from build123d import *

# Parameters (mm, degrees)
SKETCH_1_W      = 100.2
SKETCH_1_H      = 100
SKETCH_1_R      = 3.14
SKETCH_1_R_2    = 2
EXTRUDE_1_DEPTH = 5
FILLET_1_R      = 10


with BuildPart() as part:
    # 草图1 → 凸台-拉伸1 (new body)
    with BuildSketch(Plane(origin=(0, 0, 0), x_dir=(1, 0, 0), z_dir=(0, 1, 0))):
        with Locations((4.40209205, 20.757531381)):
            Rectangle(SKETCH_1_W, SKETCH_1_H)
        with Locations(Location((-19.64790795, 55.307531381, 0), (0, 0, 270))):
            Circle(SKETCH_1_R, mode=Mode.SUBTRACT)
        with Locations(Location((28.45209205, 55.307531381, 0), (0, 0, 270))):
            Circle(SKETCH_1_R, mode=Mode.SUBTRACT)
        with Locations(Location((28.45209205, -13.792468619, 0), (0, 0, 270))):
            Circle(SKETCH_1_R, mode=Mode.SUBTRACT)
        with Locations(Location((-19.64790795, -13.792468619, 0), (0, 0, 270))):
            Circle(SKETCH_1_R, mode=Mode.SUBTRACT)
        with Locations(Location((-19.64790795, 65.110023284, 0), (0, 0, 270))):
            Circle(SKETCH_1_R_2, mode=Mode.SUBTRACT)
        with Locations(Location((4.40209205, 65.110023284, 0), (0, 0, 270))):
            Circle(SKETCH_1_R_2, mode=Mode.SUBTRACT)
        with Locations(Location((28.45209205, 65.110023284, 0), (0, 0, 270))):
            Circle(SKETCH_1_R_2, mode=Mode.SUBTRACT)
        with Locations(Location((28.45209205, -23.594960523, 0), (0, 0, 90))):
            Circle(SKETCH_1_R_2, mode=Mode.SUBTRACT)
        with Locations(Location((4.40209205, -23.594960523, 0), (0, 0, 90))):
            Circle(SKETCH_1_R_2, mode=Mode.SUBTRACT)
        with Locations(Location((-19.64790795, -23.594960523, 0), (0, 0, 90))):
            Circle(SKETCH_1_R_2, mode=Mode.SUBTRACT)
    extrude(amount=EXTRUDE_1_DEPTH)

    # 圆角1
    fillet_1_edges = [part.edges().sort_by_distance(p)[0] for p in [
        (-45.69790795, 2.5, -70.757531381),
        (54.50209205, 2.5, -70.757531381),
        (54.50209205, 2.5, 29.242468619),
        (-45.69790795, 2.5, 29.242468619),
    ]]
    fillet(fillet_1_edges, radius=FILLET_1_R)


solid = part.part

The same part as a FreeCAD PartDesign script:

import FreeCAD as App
import Part
import Sketcher
Q = App.Units.Quantity


def edges_at(feature, points):
    """Names of the edges that pass closest to the given points."""
    edges = feature.Shape.Edges
    near = lambda p: min(range(len(edges)), key=lambda i: edges[i].distToShape(Part.Vertex(*p))[0])
    return sorted({f"Edge{near(p) + 1}" for p in points})

doc = App.newDocument("Part")
params = doc.addObject("Spreadsheet::Sheet", "Params")
for row, (alias, value) in enumerate([
    ("sketch1_diameter", "4 mm"),
    ("sketch1_diameter2", "6.28 mm"),
    ("sketch1_height", "100 mm"),
    ("sketch1_width", "100.2 mm"),
    ("pad1_length", "5 mm"),
    ("fillet_radius", "10 mm"),
], start=1):
    params.set(f"A{row}", alias)
    params.set(f"B{row}", "=" + value)
    params.setAlias(f"B{row}", alias)

body = doc.addObject("PartDesign::Body", "Body")

# Sketch on XZ plane
sketch1 = body.newObject("Sketcher::SketchObject", "Sketch")
sketch1.AttachmentSupport = (doc.getObject("XZ_Plane"), [""])
sketch1.MapMode = "FlatFace"
sketch1.addGeometry([
    Part.LineSegment(App.Vector(-45.697908, -70.757531, 0), App.Vector(-45.697908, 29.242469, 0)),  # 0
    Part.LineSegment(App.Vector(-45.697908, 29.242469, 0), App.Vector(54.502092, 29.242469, 0)),  # 1
    Part.LineSegment(App.Vector(54.502092, 29.242469, 0), App.Vector(54.502092, -70.757531, 0)),  # 2
    Part.LineSegment(App.Vector(54.502092, -70.757531, 0), App.Vector(-45.697908, -70.757531, 0)),  # 3
    Part.Circle(App.Vector(-19.647908, 23.594961, 0), App.Vector(0, 0, 1), 2),  # 4
    Part.Circle(App.Vector(-19.647908, 13.792469, 0), App.Vector(0, 0, 1), 3.14),  # 5
    Part.Circle(App.Vector(4.402092, 23.594961, 0), App.Vector(0, 0, 1), 2),  # 6
    Part.Circle(App.Vector(28.452092, 23.594961, 0), App.Vector(0, 0, 1), 2),  # 7
    Part.Circle(App.Vector(28.452092, 13.792469, 0), App.Vector(0, 0, 1), 3.14),  # 8
    Part.Circle(App.Vector(-19.647908, -55.307531, 0), App.Vector(0, 0, 1), 3.14),  # 9
    Part.Circle(App.Vector(-19.647908, -65.110023, 0), App.Vector(0, 0, 1), 2),  # 10
    Part.Circle(App.Vector(4.402092, -65.110023, 0), App.Vector(0, 0, 1), 2),  # 11
    Part.Circle(App.Vector(28.452092, -55.307531, 0), App.Vector(0, 0, 1), 3.14),  # 12
    Part.Circle(App.Vector(28.452092, -65.110023, 0), App.Vector(0, 0, 1), 2),  # 13
], False)
sketch1.addConstraint([
    Sketcher.Constraint("Coincident", 0, 2, 1, 1),
    Sketcher.Constraint("Coincident", 1, 2, 2, 1),
    Sketcher.Constraint("Coincident", 2, 2, 3, 1),
    Sketcher.Constraint("Coincident", 3, 2, 0, 1),
    Sketcher.Constraint("Vertical", 0),
    Sketcher.Constraint("Horizontal", 1),
    Sketcher.Constraint("Vertical", 2),
    Sketcher.Constraint("Horizontal", 3),
    Sketcher.Constraint("Equal", 4, 6),
    Sketcher.Constraint("Equal", 6, 7),
    Sketcher.Constraint("Equal", 5, 8),
    Sketcher.Constraint("Equal", 8, 9),
    Sketcher.Constraint("Equal", 7, 10),
    Sketcher.Constraint("Equal", 10, 11),
    Sketcher.Constraint("Equal", 9, 12),
    Sketcher.Constraint("Equal", 11, 13),
    Sketcher.Constraint("Horizontal", 4, 3, 6, 3),
    Sketcher.Constraint("Horizontal", 6, 3, 7, 3),
    Sketcher.Constraint("Horizontal", 5, 3, 8, 3),
    Sketcher.Constraint("Horizontal", 10, 3, 11, 3),
    Sketcher.Constraint("Horizontal", 9, 3, 12, 3),
    Sketcher.Constraint("Horizontal", 11, 3, 13, 3),
    Sketcher.Constraint("Vertical", 4, 3, 5, 3),
    Sketcher.Constraint("Vertical", 7, 3, 8, 3),
    Sketcher.Constraint("Vertical", 5, 3, 9, 3),
    Sketcher.Constraint("Vertical", 9, 3, 10, 3),
    Sketcher.Constraint("Vertical", 6, 3, 11, 3),
    Sketcher.Constraint("Vertical", 8, 3, 12, 3),
    Sketcher.Constraint("Vertical", 12, 3, 13, 3),
    Sketcher.Constraint("Diameter", 4, Q("4 mm")),
    Sketcher.Constraint("Diameter", 5, Q("6.28 mm")),
    Sketcher.Constraint("DistanceY", 0, 1, 0, 2, Q("100 mm")),
    Sketcher.Constraint("DistanceX", 1, 1, 1, 2, Q("100.2 mm")),
    Sketcher.Constraint("DistanceX", 4, 3, 7, 3, Q("48.1 mm")),
    Sketcher.Constraint("DistanceY", 9, 3, 5, 3, Q("69.1 mm")),
    Sketcher.Constraint("DistanceX", 0, 2, 6, 3, Q("50.1 mm")),
    Sketcher.Constraint("DistanceX", 4, 3, 6, 3, Q("24.05 mm")),
    Sketcher.Constraint("DistanceY", 5, 3, 0, 2, Q("15.45 mm")),
    Sketcher.Constraint("DistanceY", -1, 1, 4, 3, Q("23.594961 mm")),
    Sketcher.Constraint("DistanceY", -1, 1, 5, 3, Q("13.792469 mm")),
    Sketcher.Constraint("DistanceY", 10, 3, 9, 3, Q("9.802492 mm")),
    Sketcher.Constraint("DistanceX", 4, 3, -1, 1, Q("19.647908 mm")),
])
sketch1.setExpression("Constraints[29]", "Params.sketch1_diameter")
sketch1.setExpression("Constraints[30]", "Params.sketch1_diameter2")
sketch1.setExpression("Constraints[31]", "Params.sketch1_height")
sketch1.setExpression("Constraints[32]", "Params.sketch1_width")
pad1 = body.newObject("PartDesign::Pad", "Pad")
pad1.Profile = sketch1
pad1.setExpression("Length", "Params.pad1_length")
pad1.Reversed = True
doc.recompute()

fillet = body.newObject("PartDesign::Fillet", "Fillet")
fillet.Base = (pad1, edges_at(pad1, [
    (-45.698, 2.5, -70.758),
    (54.502, 2.5, -70.758),
    (54.502, 2.5, 29.242),
    (-45.698, 2.5, 29.242),
]))
fillet.setExpression("Radius", "Params.fillet_radius")

doc.recompute()
